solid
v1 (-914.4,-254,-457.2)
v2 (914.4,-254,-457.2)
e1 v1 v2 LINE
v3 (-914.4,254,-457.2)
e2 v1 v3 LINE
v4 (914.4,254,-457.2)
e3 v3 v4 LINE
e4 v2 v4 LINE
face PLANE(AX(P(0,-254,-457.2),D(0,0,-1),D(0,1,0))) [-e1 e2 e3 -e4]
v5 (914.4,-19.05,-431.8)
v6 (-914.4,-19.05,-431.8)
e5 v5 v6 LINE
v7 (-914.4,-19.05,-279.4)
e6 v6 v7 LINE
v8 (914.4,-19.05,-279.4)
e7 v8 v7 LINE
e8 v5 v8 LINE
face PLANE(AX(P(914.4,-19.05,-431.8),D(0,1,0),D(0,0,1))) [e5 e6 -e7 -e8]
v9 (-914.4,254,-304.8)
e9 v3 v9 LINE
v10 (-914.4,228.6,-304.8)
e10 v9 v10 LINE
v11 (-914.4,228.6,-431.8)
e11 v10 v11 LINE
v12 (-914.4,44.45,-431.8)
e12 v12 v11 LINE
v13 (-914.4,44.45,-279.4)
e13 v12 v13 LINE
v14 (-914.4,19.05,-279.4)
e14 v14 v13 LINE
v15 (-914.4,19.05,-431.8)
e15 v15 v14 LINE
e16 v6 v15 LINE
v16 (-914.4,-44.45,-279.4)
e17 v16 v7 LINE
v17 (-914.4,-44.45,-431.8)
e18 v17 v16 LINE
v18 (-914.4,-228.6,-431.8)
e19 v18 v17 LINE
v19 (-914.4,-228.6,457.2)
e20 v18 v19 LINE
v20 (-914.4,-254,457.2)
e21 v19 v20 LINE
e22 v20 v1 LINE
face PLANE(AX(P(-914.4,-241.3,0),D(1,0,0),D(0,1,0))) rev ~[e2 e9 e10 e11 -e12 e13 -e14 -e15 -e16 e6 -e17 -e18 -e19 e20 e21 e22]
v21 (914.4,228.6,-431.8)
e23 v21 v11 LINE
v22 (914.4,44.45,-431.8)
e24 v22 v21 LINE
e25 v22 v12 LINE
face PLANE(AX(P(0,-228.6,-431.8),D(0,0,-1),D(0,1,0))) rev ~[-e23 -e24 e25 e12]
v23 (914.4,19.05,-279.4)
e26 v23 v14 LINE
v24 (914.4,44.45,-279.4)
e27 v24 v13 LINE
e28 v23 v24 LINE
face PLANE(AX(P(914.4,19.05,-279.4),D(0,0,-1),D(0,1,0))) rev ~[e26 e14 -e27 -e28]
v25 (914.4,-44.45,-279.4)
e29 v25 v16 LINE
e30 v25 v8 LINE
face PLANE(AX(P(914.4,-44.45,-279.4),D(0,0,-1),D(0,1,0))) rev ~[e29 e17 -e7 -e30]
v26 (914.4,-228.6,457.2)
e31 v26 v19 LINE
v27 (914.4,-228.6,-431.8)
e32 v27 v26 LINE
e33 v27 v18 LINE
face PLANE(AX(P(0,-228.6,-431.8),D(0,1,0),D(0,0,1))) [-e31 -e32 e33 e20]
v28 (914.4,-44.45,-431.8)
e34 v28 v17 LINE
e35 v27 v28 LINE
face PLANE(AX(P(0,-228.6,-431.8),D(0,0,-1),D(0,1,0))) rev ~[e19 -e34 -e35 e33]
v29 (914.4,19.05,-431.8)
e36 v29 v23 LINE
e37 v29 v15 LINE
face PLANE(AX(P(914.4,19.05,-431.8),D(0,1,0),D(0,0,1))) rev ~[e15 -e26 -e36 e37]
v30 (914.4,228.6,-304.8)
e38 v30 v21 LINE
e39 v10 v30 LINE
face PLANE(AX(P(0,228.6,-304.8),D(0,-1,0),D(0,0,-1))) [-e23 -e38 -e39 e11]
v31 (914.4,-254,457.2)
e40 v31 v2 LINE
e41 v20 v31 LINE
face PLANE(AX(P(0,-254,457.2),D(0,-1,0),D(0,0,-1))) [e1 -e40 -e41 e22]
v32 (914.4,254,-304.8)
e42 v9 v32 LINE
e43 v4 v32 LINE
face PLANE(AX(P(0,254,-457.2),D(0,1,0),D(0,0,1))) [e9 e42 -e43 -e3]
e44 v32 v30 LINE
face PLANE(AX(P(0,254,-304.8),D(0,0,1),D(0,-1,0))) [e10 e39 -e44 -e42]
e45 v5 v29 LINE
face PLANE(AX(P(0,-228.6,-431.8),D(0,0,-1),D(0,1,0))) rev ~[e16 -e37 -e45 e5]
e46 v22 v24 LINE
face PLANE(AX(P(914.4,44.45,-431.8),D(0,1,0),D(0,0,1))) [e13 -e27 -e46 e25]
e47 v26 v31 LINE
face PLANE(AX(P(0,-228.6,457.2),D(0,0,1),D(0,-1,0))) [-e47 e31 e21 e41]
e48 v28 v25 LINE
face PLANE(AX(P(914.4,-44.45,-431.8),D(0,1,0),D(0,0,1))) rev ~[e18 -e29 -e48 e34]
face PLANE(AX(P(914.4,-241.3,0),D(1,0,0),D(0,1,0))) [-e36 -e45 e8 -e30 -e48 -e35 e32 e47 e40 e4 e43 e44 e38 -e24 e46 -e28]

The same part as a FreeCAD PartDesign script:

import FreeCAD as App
import Part
import Sketcher
from FreeCAD import Vector
Q = App.Units.Quantity


def add_polygon(sketch, points):
    """Adds a closed chain of lines whose ends are joined by coincident constraints."""
    first, n = sketch.GeometryCount, len(points)
    for a, b in zip(points, points[1:] + points[:1]):
        sketch.addGeometry(Part.LineSegment(App.Vector(*a, 0), App.Vector(*b, 0)), False)
    for i in range(n):
        sketch.addConstraint(Sketcher.Constraint("Coincident", first + i, 2, first + (i + 1) % n, 1))

doc = App.newDocument("Part")
body = doc.addObject("PartDesign::Body", "Body")

sketch1 = body.newObject("Sketcher::SketchObject", "Sketch")
sketch1.AttachmentSupport = (doc.getObject("YZ_Plane"), [""])
sketch1.MapMode = "FlatFace"
add_polygon(sketch1, [(-229, 457), (-254, 457), (-254, -457), (254, -457), (254, -305), (229, -305), (229, -432), (-229, -432)])
sketch1.addConstraint(Sketcher.Constraint("Horizontal", 0))
sketch1.addConstraint(Sketcher.Constraint("Vertical", 1))
sketch1.addConstraint(Sketcher.Constraint("Horizontal", 2))
sketch1.addConstraint(Sketcher.Constraint("Vertical", 3))
sketch1.addConstraint(Sketcher.Constraint("Horizontal", 4))
sketch1.addConstraint(Sketcher.Constraint("Vertical", 5))
sketch1.addConstraint(Sketcher.Constraint("Horizontal", 6))
sketch1.addConstraint(Sketcher.Constraint("Vertical", 7))
sketch1.addConstraint(Sketcher.Constraint("Symmetric", 0, 2, 2, 2, -1, 1))
sketch1.addConstraint(Sketcher.Constraint("Equal", 0, 4))
sketch1.addConstraint(Sketcher.Constraint("DistanceX", 0, 2, 0, 1, Q("1 in")))
sketch1.addConstraint(Sketcher.Constraint("DistanceX", 2, 1, 2, 2, Q("20 in")))
sketch1.addConstraint(Sketcher.Constraint("DistanceY", 1, 2, 1, 1, Q("36 in")))
sketch1.addConstraint(Sketcher.Constraint("DistanceY", 3, 1, 3, 2, Q("6 in")))
sketch1.addConstraint(Sketcher.Constraint("DistanceY", 5, 2, 5, 1, Q("5 in")))
pad1 = body.newObject("PartDesign::Pad", "Pad")
pad1.Profile = sketch1
pad1.Length = Q("72 in")
pad1.Midplane = True

sketch2 = body.newObject("Sketcher::SketchObject", "Sketch001")
sketch2.AttachmentSupport = (doc.getObject("YZ_Plane"), [""])
sketch2.MapMode = "FlatFace"
sketch2.AttachmentOffset = App.Placement(Vector(0, 0, 36 * 25.4), App.Rotation())
add_polygon(sketch2, [(-44, -279), (-44, -432), (-19, -432), (-19, -279)])
add_polygon(sketch2, [(19, -279), (19, -432), (44, -432), (44, -279)])
sketch2.addConstraint(Sketcher.Constraint("Vertical", 0))
sketch2.addConstraint(Sketcher.Constraint("Horizontal", 1))
sketch2.addConstraint(Sketcher.Constraint("Vertical", 2))
sketch2.addConstraint(Sketcher.Constraint("Horizontal", 3))
sketch2.addConstraint(Sketcher.Constraint("Vertical", 4))
sketch2.addConstraint(Sketcher.Constraint("Horizontal", 5))
sketch2.addConstraint(Sketcher.Constraint("Vertical", 6))
sketch2.addConstraint(Sketcher.Constraint("Horizontal", 7))
sketch2.addConstraint(Sketcher.Constraint("Symmetric", 1, 2, 4, 2, -2))
sketch2.addConstraint(Sketcher.Constraint("Symmetric", 3, 2, 6, 2, -2))
sketch2.addConstraint(Sketcher.Constraint("DistanceX", 1, 1, 1, 2, Q("1 in")))
sketch2.addConstraint(Sketcher.Constraint("DistanceY", 0, 2, 0, 1, Q("6 in")))
sketch2.addConstraint(Sketcher.Constraint("DistanceY", 0, 2, -1, 1, Q("17 in")))
sketch2.addConstraint(Sketcher.Constraint("DistanceX", 1, 2, 4, 2, Q("1.5 in")))
pad2 = body.newObject("PartDesign::Pad", "Pad001")
pad2.Profile = sketch2
pad2.Length = Q("72 in")
pad2.Reversed = True

doc.recompute()
